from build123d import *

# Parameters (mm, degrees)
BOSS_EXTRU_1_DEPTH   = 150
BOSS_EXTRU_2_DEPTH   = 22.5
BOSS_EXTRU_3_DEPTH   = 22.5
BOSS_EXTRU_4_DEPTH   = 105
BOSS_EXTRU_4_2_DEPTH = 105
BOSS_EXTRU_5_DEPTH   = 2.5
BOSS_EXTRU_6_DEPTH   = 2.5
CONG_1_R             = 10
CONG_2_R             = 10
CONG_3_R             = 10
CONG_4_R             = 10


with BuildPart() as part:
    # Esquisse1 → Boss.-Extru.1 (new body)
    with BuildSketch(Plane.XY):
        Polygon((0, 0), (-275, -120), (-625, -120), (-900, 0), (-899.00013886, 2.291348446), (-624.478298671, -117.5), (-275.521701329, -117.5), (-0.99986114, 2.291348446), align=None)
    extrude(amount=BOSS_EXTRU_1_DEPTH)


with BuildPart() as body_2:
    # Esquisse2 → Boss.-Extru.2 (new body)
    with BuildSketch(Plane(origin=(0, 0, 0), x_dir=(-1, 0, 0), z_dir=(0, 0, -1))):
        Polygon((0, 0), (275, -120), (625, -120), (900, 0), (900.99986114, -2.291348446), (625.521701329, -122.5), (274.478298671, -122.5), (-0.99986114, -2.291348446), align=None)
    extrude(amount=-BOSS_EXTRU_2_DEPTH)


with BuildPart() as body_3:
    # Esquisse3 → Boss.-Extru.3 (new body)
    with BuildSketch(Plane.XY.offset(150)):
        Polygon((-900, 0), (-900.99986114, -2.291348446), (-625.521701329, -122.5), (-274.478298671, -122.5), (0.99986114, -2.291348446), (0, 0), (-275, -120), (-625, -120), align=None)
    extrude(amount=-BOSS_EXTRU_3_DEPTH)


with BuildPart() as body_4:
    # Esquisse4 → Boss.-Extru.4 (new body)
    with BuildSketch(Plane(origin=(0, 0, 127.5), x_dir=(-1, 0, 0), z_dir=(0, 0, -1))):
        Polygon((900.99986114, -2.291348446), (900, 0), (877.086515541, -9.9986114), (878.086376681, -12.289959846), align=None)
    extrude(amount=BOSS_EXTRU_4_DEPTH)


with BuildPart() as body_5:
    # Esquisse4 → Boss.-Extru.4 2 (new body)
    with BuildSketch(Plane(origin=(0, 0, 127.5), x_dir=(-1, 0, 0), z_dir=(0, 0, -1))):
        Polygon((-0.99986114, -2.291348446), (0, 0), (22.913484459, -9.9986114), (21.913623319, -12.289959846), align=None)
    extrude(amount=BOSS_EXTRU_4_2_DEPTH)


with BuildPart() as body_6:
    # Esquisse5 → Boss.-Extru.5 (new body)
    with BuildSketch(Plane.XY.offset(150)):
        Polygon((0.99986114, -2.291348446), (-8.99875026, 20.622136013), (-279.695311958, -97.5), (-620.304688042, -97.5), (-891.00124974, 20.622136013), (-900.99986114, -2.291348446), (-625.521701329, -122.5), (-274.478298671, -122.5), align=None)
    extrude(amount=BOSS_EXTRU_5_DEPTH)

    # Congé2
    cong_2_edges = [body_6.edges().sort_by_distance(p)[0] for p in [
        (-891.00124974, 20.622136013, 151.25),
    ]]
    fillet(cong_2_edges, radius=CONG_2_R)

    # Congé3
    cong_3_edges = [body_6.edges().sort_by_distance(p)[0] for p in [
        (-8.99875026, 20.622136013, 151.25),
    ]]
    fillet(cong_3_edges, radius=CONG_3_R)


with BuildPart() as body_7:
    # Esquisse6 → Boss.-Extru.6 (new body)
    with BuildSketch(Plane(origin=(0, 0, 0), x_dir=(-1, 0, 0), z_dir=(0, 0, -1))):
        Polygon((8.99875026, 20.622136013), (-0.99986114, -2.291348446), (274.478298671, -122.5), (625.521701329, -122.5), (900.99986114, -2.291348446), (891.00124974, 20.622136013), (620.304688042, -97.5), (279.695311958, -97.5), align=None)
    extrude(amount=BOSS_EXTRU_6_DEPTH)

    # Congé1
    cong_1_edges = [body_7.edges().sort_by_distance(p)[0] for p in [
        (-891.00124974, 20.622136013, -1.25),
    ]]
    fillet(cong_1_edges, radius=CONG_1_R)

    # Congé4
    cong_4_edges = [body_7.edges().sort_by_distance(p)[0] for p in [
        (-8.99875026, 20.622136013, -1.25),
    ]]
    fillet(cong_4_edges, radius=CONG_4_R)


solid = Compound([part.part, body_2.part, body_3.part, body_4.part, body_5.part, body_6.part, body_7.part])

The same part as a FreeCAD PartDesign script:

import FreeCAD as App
import Part
import Sketcher
from FreeCAD import Vector
Q = App.Units.Quantity


def edges_at(feature, points):
    """Names of the edges that pass closest to the given points."""
    edges = feature.Shape.Edges
    near = lambda p: min(range(len(edges)), key=lambda i: edges[i].distToShape(Part.Vertex(*p))[0])
    return sorted({f"Edge{near(p) + 1}" for p in points})

doc = App.newDocument("Part")
params = doc.addObject("Spreadsheet::Sheet", "Params")
for row, (alias, value) in enumerate([
    ("sketch1_width", "350 mm"),
    ("sketch1_length", "2.5 mm"),
    ("pad1_length", "150 mm"),
    ("sketch2_width", "350 mm"),
    ("sketch2_length", "2.5 mm"),
    ("pad2_length", "22.5 mm"),
    ("sketch3_width", "350 mm"),
    ("sketch3_length", "2.5 mm"),
    ("pad3_length", "22.5 mm"),
    ("sketch4_length", "25 mm"),
    ("sketch4_length2", "2.5 mm"),
    ("pad4_length", "105 mm"),
    ("sketch5_length", "25 mm"),
    ("sketch5_length2", "2.5 mm"),
    ("pad5_length", "105 mm"),
    ("sketch6_length", "25 mm"),
    ("pad6_length", "2.5 mm"),
    ("fillet_radius", "10 mm"),
    ("fillet2_radius", "10 mm"),
    ("sketch7_length", "25 mm"),
    ("pad7_length", "2.5 mm"),
    ("fillet3_radius", "10 mm"),
    ("fillet4_radius", "10 mm"),
], start=1):
    params.set(f"A{row}", alias)
    params.set(f"B{row}", "=" + value)
    params.setAlias(f"B{row}", alias)

body = doc.addObject("PartDesign::Body", "Body")

# Sketch on XY plane
sketch1 = body.newObject("Sketcher::SketchObject", "Sketch")
sketch1.AttachmentSupport = (doc.getObject("XY_Plane"), [""])
sketch1.MapMode = "FlatFace"
sketch1.addGeometry([
    Part.LineSegment(Vector(-275, -120, 0), Vector(0, 0, 0)),  # 0
    Part.LineSegment(Vector(0, 0, 0), Vector(-0.999861, 2.291348, 0)),  # 1
    Part.LineSegment(Vector(-0.999861, 2.291348, 0), Vector(-275.521701, -117.5, 0)),  # 2
    Part.LineSegment(Vector(-275.521701, -117.5, 0), Vector(-624.478299, -117.5, 0)),  # 3
    Part.LineSegment(Vector(-624.478299, -117.5, 0), Vector(-899.000139, 2.291348, 0)),  # 4
    Part.LineSegment(Vector(-899.000139, 2.291348, 0), Vector(-900, 0, 0)),  # 5
    Part.LineSegment(Vector(-900, 0, 0), Vector(-625, -120, 0)),  # 6
    Part.LineSegment(Vector(-625, -120, 0), Vector(-275, -120, 0)),  # 7
], False)
sketch1.addConstraint([
    Sketcher.Constraint("Coincident", 0, 2, 1, 1),
    Sketcher.Constraint("Coincident", 1, 2, 2, 1),
    Sketcher.Constraint("Coincident", 2, 2, 3, 1),
    Sketcher.Constraint("Coincident", 3, 2, 4, 1),
    Sketcher.Constraint("Coincident", 4, 2, 5, 1),
    Sketcher.Constraint("Coincident", 5, 2, 6, 1),
    Sketcher.Constraint("Coincident", 6, 2, 7, 1),
    Sketcher.Constraint("Coincident", 7, 2, 0, 1),
    Sketcher.Constraint("Horizontal", 3),
    Sketcher.Constraint("Horizontal", 7),
    Sketcher.Constraint("Coincident", 0, 2, -1, 1),
    Sketcher.Constraint("PointOnObject", 5, 2, -1),
    Sketcher.Constraint("Perpendicular", 0, 1),
    Sketcher.Constraint("Perpendicular", 1, 2),
    Sketcher.Constraint("Perpendicular", 4, 5),
    Sketcher.Constraint("Perpendicular", 5, 6),
    Sketcher.Constraint("Horizontal", 1, 2, 4, 2),
    Sketcher.Constraint("Equal", 2, 4),
    Sketcher.Constraint("DistanceX", 7, 1, 7, 2, Q("350 mm")),
    Sketcher.Constraint("DistanceX", 5, 2, -1, 1, Q("900 mm")),
    Sketcher.Constraint("DistanceY", 6, 2, -1, 1, Q("120 mm")),
    Sketcher.Constraint("Distance", 1, Q("2.5 mm")),
    Sketcher.Constraint("DistanceY", 2, 2, -1, 1, Q("117.5 mm")),
])
sketch1.setExpression("Constraints[18]", "Params.sketch1_width")
sketch1.setExpression("Constraints[21]", "Params.sketch1_length")
pad1 = body.newObject("PartDesign::Pad", "Pad")
pad1.Profile = sketch1
pad1.setExpression("Length", "Params.pad1_length")
body2 = doc.addObject("PartDesign::Body", "Body001")

# Sketch on XY plane
sketch2 = body2.newObject("Sketcher::SketchObject", "Sketch001")
sketch2.AttachmentSupport = (doc.getObject("XY_Plane001"), [""])
sketch2.MapMode = "FlatFace"
sketch2.addGeometry([
    Part.LineSegment(Vector(-275, -120, 0), Vector(0, 0, 0)),  # 0
    Part.LineSegment(Vector(0, 0, 0), Vector(0.999861, -2.291348, 0)),  # 1
    Part.LineSegment(Vector(0.999861, -2.291348, 0), Vector(-274.478299, -122.5, 0)),  # 2
    Part.LineSegment(Vector(-274.478299, -122.5, 0), Vector(-625.521701, -122.5, 0)),  # 3
    Part.LineSegment(Vector(-625.521701, -122.5, 0), Vector(-900.999861, -2.291348, 0)),  # 4
    Part.LineSegment(Vector(-900.999861, -2.291348, 0), Vector(-900, 0, 0)),  # 5
    Part.LineSegment(Vector(-900, 0, 0), Vector(-625, -120, 0)),  # 6
    Part.LineSegment(Vector(-625, -120, 0), Vector(-275, -120, 0)),  # 7
], False)
sketch2.addConstraint([
    Sketcher.Constraint("Coincident", 0, 2, 1, 1),
    Sketcher.Constraint("Coincident", 1, 2, 2, 1),
    Sketcher.Constraint("Coincident", 2, 2, 3, 1),
    Sketcher.Constraint("Coincident", 3, 2, 4, 1),
    Sketcher.Constraint("Coincident", 4, 2, 5, 1),
    Sketcher.Constraint("Coincident", 5, 2, 6, 1),
    Sketcher.Constraint("Coincident", 6, 2, 7, 1),
    Sketcher.Constraint("Coincident", 7, 2, 0, 1),
    Sketcher.Constraint("Horizontal", 3),
    Sketcher.Constraint("Horizontal", 7),
    Sketcher.Constraint("Coincident", 0, 2, -1, 1),
    Sketcher.Constraint("PointOnObject", 5, 2, -1),
    Sketcher.Constraint("Perpendicular", 0, 1),
    Sketcher.Constraint("Perpendicular", 1, 2),
    Sketcher.Constraint("Perpendicular", 4, 5),
    Sketcher.Constraint("Perpendicular", 5, 6),
    Sketcher.Constraint("Horizontal", 1, 2, 4, 2),
    Sketcher.Constraint("Equal", 2, 4),
    Sketcher.Constraint("DistanceX", 7, 1, 7, 2, Q("350 mm")),
    Sketcher.Constraint("DistanceX", 5, 2, -1, 1, Q("900 mm")),
    Sketcher.Constraint("DistanceY", 6, 2, -1, 1, Q("120 mm")),
    Sketcher.Constraint("Distance", 1, Q("2.5 mm")),
    Sketcher.Constraint("DistanceY", 2, 2, -1, 1, Q("122.5 mm")),
])
sketch2.setExpression("Constraints[18]", "Params.sketch2_width")
sketch2.setExpression("Constraints[21]", "Params.sketch2_length")
pad2 = body2.newObject("PartDesign::Pad", "Pad001")
pad2.Profile = sketch2
pad2.setExpression("Length", "Params.pad2_length")
body3 = doc.addObject("PartDesign::Body", "Body002")

# Sketch on XY plane
sketch3 = body3.newObject("Sketcher::SketchObject", "Sketch002")
sketch3.AttachmentSupport = (doc.getObject("XY_Plane002"), [""])
sketch3.MapMode = "FlatFace"
sketch3.AttachmentOffset = App.Placement(Vector(0, 0, 150), App.Rotation())
sketch3.addGeometry([
    Part.LineSegment(Vector(-900, 0, 0), Vector(-900.999861, -2.291348, 0)),  # 0
    Part.LineSegment(Vector(-900.999861, -2.291348, 0), Vector(-625.521701, -122.5, 0)),  # 1
    Part.LineSegment(Vector(-625.521701, -122.5, 0), Vector(-274.478299, -122.5, 0)),  # 2
    Part.LineSegment(Vector(-274.478299, -122.5, 0), Vector(0.999861, -2.291348, 0)),  # 3
    Part.LineSegment(Vector(0.999861, -2.291348, 0), Vector(0, 0, 0)),  # 4
    Part.LineSegment(Vector(0, 0, 0), Vector(-275, -120, 0)),  # 5
    Part.LineSegment(Vector(-275, -120, 0), Vector(-625, -120, 0)),  # 6
    Part.LineSegment(Vector(-625, -120, 0), Vector(-900, 0, 0)),  # 7
], False)
sketch3.addConstraint([
    Sketcher.Constraint("Coincident", 0, 2, 1, 1),
    Sketcher.Constraint("Coincident", 1, 2, 2, 1),
    Sketcher.Constraint("Coincident", 2, 2, 3, 1),
    Sketcher.Constraint("Coincident", 3, 2, 4, 1),
    Sketcher.Constraint("Coincident", 4, 2, 5, 1),
    Sketcher.Constraint("Coincident", 5, 2, 6, 1),
    Sketcher.Constraint("Coincident", 6, 2, 7, 1),
    Sketcher.Constraint("Coincident", 7, 2, 0, 1),
    Sketcher.Constraint("Horizontal", 2),
    Sketcher.Constraint("Horizontal", 6),
    Sketcher.Constraint("Coincident", 4, 2, -1, 1),
    Sketcher.Constraint("PointOnObject", 7, 2, -1),
    Sketcher.Constraint("Perpendicular", 0, 1),
    Sketcher.Constraint("Perpendicular", 3, 4),
    Sketcher.Constraint("Perpendicular", 4, 5),
    Sketcher.Constraint("Parallel", 1, 7),
    Sketcher.Constraint("Horizontal", 0, 2, 3, 2),
    Sketcher.Constraint("Equal", 1, 3),
    Sketcher.Constraint("DistanceX", 6, 2, 6, 1, Q("350 mm")),
    Sketcher.Constraint("DistanceX", 5, 2, -1, 1, Q("275 mm")),
    Sketcher.Constraint("DistanceY", 5, 2, -1, 1, Q("120 mm")),
    Sketcher.Constraint("Distance", 0, Q("2.5 mm")),
    Sketcher.Constraint("DistanceY", 1, 2, -1, 1, Q("122.5 mm")),
])
sketch3.setExpression("Constraints[18]", "Params.sketch3_width")
sketch3.setExpression("Constraints[21]", "Params.sketch3_length")
pad3 = body3.newObject("PartDesign::Pad", "Pad002")
pad3.Profile = sketch3
pad3.setExpression("Length", "Params.pad3_length")
pad3.Reversed = True
body4 = doc.addObject("PartDesign::Body", "Body003")

# Sketch on XY plane
sketch4 = body4.newObject("Sketcher::SketchObject", "Sketch003")
sketch4.AttachmentSupport = (doc.getObject("XY_Plane003"), [""])
sketch4.MapMode = "FlatFace"
sketch4.AttachmentOffset = App.Placement(Vector(0, 0, 127.5), App.Rotation())
sketch4.addGeometry([
    Part.LineSegment(Vector(-900.999861, -2.291348, 0), Vector(-900, 0, 0)),
    Part.LineSegment(Vector(-900, 0, 0), Vector(-877.086516, -9.998611, 0)),
    Part.LineSegment(Vector(-877.086516, -9.998611, 0), Vector(-878.086377, -12.28996, 0)),
    Part.LineSegment(Vector(-878.086377, -12.28996, 0), Vector(-900.999861, -2.291348, 0)),
], False)
sketch4.addConstraint([
    Sketcher.Constraint("Coincident", 0, 2, 1, 1),
    Sketcher.Constraint("Coincident", 1, 2, 2, 1),
    Sketcher.Constraint("Coincident", 2, 2, 3, 1),
    Sketcher.Constraint("Coincident", 3, 2, 0, 1),
    Sketcher.Constraint("PointOnObject", 0, 2, -1),
    Sketcher.Constraint("Perpendicular", 0, 1),
    Sketcher.Constraint("Perpendicular", 1, 2),
    Sketcher.Constraint("Perpendicular", 2, 3),
    Sketcher.Constraint("Distance", 1, Q("25 mm")),
    Sketcher.Constraint("DistanceX", 0, 2, -1, 1, Q("900 mm")),
    Sketcher.Constraint("Distance", 0, Q("2.5 mm")),
    Sketcher.Constraint("DistanceY", 1, 2, -1, 1, Q("9.998611 mm")),
])
sketch4.setExpression("Constraints[8]", "Params.sketch4_length")
sketch4.setExpression("Constraints[10]", "Params.sketch4_length2")
pad4 = body4.newObject("PartDesign::Pad", "Pad003")
pad4.Profile = sketch4
pad4.setExpression("Length", "Params.pad4_length")
pad4.Reversed = True
body5 = doc.addObject("PartDesign::Body", "Body004")

# Sketch on XY plane
sketch5 = body5.newObject("Sketcher::SketchObject", "Sketch004")
sketch5.AttachmentSupport = (doc.getObject("XY_Plane004"), [""])
sketch5.MapMode = "FlatFace"
sketch5.AttachmentOffset = App.Placement(Vector(0, 0, 127.5), App.Rotation())
sketch5.addGeometry([
    Part.LineSegment(Vector(0, 0, 0), Vector(0.999861, -2.291348, 0)),
    Part.LineSegment(Vector(0.999861, -2.291348, 0), Vector(-21.913623, -12.28996, 0)),
    Part.LineSegment(Vector(-21.913623, -12.28996, 0), Vector(-22.913484, -9.998611, 0)),
    Part.LineSegment(Vector(-22.913484, -9.998611, 0), Vector(0, 0, 0)),
], False)
sketch5.addConstraint([
    Sketcher.Constraint("Coincident", 0, 2, 1, 1),
    Sketcher.Constraint("Coincident", 1, 2, 2, 1),
    Sketcher.Constraint("Coincident", 2, 2, 3, 1),
    Sketcher.Constraint("Coincident", 3, 2, 0, 1),
    Sketcher.Constraint("Coincident", 3, 2, -1, 1),
    Sketcher.Constraint("Perpendicular", 0, 1),
    Sketcher.Constraint("Perpendicular", 1, 2),
    Sketcher.Constraint("Perpendicular", 2, 3),
    Sketcher.Constraint("Distance", 1, Q("25 mm")),
    Sketcher.Constraint("Distance", 0, Q("2.5 mm")),
    Sketcher.Constraint("DistanceX", -1, 1, 0, 2, Q("0.999861 mm")),
])
sketch5.setExpression("Constraints[8]", "Params.sketch5_length")
sketch5.setExpression("Constraints[9]", "Params.sketch5_length2")
pad5 = body5.newObject("PartDesign::Pad", "Pad004")
pad5.Profile = sketch5
pad5.setExpression("Length", "Params.pad5_length")
pad5.Reversed = True
body6 = doc.addObject("PartDesign::Body", "Body005")

# Sketch on XY plane
sketch6 = body6.newObject("Sketcher::SketchObject", "Sketch005")
sketch6.AttachmentSupport = (doc.getObject("XY_Plane005"), [""])
sketch6.MapMode = "FlatFace"
sketch6.AttachmentOffset = App.Placement(Vector(0, 0, 150), App.Rotation())
sketch6.addGeometry([
    Part.LineSegment(Vector(0.999861, -2.291348, 0), Vector(-8.99875, 20.622136, 0)),  # 0
    Part.LineSegment(Vector(-8.99875, 20.622136, 0), Vector(-279.695312, -97.5, 0)),  # 1
    Part.LineSegment(Vector(-279.695312, -97.5, 0), Vector(-620.304688, -97.5, 0)),  # 2
    Part.LineSegment(Vector(-620.304688, -97.5, 0), Vector(-891.00125, 20.622136, 0)),  # 3
    Part.LineSegment(Vector(-891.00125, 20.622136, 0), Vector(-900.999861, -2.291348, 0)),  # 4
    Part.LineSegment(Vector(-900.999861, -2.291348, 0), Vector(-625.521701, -122.5, 0)),  # 5
    Part.LineSegment(Vector(-625.521701, -122.5, 0), Vector(-274.478299, -122.5, 0)),  # 6
    Part.LineSegment(Vector(-274.478299, -122.5, 0), Vector(0.999861, -2.291348, 0)),  # 7
], False)
sketch6.addConstraint([
    Sketcher.Constraint("Coincident", 0, 2, 1, 1),
    Sketcher.Constraint("Coincident", 1, 2, 2, 1),
    Sketcher.Constraint("Coincident", 2, 2, 3, 1),
    Sketcher.Constraint("Coincident", 3, 2, 4, 1),
    Sketcher.Constraint("Coincident", 4, 2, 5, 1),
    Sketcher.Constraint("Coincident", 5, 2, 6, 1),
    Sketcher.Constraint("Coincident", 6, 2, 7, 1),
    Sketcher.Constraint("Coincident", 7, 2, 0, 1),
    Sketcher.Constraint("Horizontal", 2),
    Sketcher.Constraint("Horizontal", 6),
    Sketcher.Constraint("Perpendicular", 0, 1),
    Sketcher.Constraint("Perpendicular", 3, 4),
    Sketcher.Constraint("Perpendicular", 4, 5),
    Sketcher.Constraint("Parallel", 1, 7),
    Sketcher.Constraint("Horizontal", 0, 2, 3, 2),
    Sketcher.Constraint("Horizontal", 4, 2, 7, 2),
    Sketcher.Constraint("Equal", 1, 3),
    Sketcher.Constraint("Distance", 0, Q("25 mm")),
    Sketcher.Constraint("DistanceY", 5, 2, 2, 2, Q("25 mm")),
    Sketcher.Constraint("DistanceY", 1, 2, -1, 1, Q("97.5 mm")),
    Sketcher.Constraint("DistanceX", 5, 2, -1, 1, Q("625.521701 mm")),
    Sketcher.Constraint("DistanceX", 6, 2, -1, 1, Q("274.478299 mm")),
    Sketcher.Constraint("DistanceX", 3, 2, 0, 2, Q("882.002499 mm")),
    Sketcher.Constraint("Distance", 1, Q("295.346352 mm")),
])
sketch6.setExpression("Constraints[17]", "Params.sketch6_length")
pad6 = body6.newObject("PartDesign::Pad", "Pad005")
pad6.Profile = sketch6
pad6.setExpression("Length", "Params.pad6_length")
doc.recompute()

fillet = body6.newObject("PartDesign::Fillet", "Fillet")
fillet.Base = (pad6, edges_at(pad6, [(-891.001, 20.622, 151.25)]))
fillet.setExpression("Radius", "Params.fillet_radius")
doc.recompute()

fillet2 = body6.newObject("PartDesign::Fillet", "Fillet001")
fillet2.Base = (fillet, edges_at(fillet, [(-8.999, 20.622, 151.25)]))
fillet2.setExpression("Radius", "Params.fillet2_radius")
body7 = doc.addObject("PartDesign::Body", "Body006")

# Sketch on XY plane
sketch7 = body7.newObject("Sketcher::SketchObject", "Sketch006")
sketch7.AttachmentSupport = (doc.getObject("XY_Plane006"), [""])
sketch7.MapMode = "FlatFace"
sketch7.addGeometry([
    Part.LineSegment(Vector(-8.99875, 20.622136, 0), Vector(0.999861, -2.291348, 0)),  # 0
    Part.LineSegment(Vector(0.999861, -2.291348, 0), Vector(-274.478299, -122.5, 0)),  # 1
    Part.LineSegment(Vector(-274.478299, -122.5, 0), Vector(-625.521701, -122.5, 0)),  # 2
    Part.LineSegment(Vector(-625.521701, -122.5, 0), Vector(-900.999861, -2.291348, 0)),  # 3
    Part.LineSegment(Vector(-900.999861, -2.291348, 0), Vector(-891.00125, 20.622136, 0)),  # 4
    Part.LineSegment(Vector(-891.00125, 20.622136, 0), Vector(-620.304688, -97.5, 0)),  # 5
    Part.LineSegment(Vector(-620.304688, -97.5, 0), Vector(-279.695312, -97.5, 0)),  # 6
    Part.LineSegment(Vector(-279.695312, -97.5, 0), Vector(-8.99875, 20.622136, 0)),  # 7
], False)
sketch7.addConstraint([
    Sketcher.Constraint("Coincident", 0, 2, 1, 1),
    Sketcher.Constraint("Coincident", 1, 2, 2, 1),
    Sketcher.Constraint("Coincident", 2, 2, 3, 1),
    Sketcher.Constraint("Coincident", 3, 2, 4, 1),
    Sketcher.Constraint("Coincident", 4, 2, 5, 1),
    Sketcher.Constraint("Coincident", 5, 2, 6, 1),
    Sketcher.Constraint("Coincident", 6, 2, 7, 1),
    Sketcher.Constraint("Coincident", 7, 2, 0, 1),
    Sketcher.Constraint("Horizontal", 2),
    Sketcher.Constraint("Horizontal", 6),
    Sketcher.Constraint("Perpendicular", 0, 1),
    Sketcher.Constraint("Perpendicular", 3, 4),
    Sketcher.Constraint("Perpendicular", 4, 5),
    Sketcher.Constraint("Parallel", 1, 7),
    Sketcher.Constraint("Horizontal", 0, 2, 3, 2),
    Sketcher.Constraint("Horizontal", 4, 2, 7, 2),
    Sketcher.Constraint("Equal", 1, 3),
    Sketcher.Constraint("Distance", 0, Q("25 mm")),
    Sketcher.Constraint("DistanceY", 2, 2, 5, 2, Q("25 mm")),
    Sketcher.Constraint("DistanceY", 1, 2, -1, 1, Q("122.5 mm")),
    Sketcher.Constraint("DistanceX", 1, 2, -1, 1, Q("274.478299 mm")),
    Sketcher.Constraint("DistanceX", 2, 2, -1, 1, Q("625.521701 mm")),
    Sketcher.Constraint("Distance", 5, Q("295.346352 mm")),
    Sketcher.Constraint("DistanceX", 6, 1, 6, 2, Q("340.609376 mm")),
])
sketch7.setExpression("Constraints[17]", "Params.sketch7_length")
pad7 = body7.newObject("PartDesign::Pad", "Pad006")
pad7.Profile = sketch7
pad7.setExpression("Length", "Params.pad7_length")
pad7.Reversed = True
doc.recompute()

fillet3 = body7.newObject("PartDesign::Fillet", "Fillet002")
fillet3.Base = (pad7, edges_at(pad7, [(-891.001, 20.622, -1.25)]))
fillet3.setExpression("Radius", "Params.fillet3_radius")
doc.recompute()

fillet4 = body7.newObject("PartDesign::Fillet", "Fillet003")
fillet4.Base = (fillet3, edges_at(fillet3, [(-8.999, 20.622, -1.25)]))
fillet4.setExpression("Radius", "Params.fillet4_radius")

doc.recompute()
